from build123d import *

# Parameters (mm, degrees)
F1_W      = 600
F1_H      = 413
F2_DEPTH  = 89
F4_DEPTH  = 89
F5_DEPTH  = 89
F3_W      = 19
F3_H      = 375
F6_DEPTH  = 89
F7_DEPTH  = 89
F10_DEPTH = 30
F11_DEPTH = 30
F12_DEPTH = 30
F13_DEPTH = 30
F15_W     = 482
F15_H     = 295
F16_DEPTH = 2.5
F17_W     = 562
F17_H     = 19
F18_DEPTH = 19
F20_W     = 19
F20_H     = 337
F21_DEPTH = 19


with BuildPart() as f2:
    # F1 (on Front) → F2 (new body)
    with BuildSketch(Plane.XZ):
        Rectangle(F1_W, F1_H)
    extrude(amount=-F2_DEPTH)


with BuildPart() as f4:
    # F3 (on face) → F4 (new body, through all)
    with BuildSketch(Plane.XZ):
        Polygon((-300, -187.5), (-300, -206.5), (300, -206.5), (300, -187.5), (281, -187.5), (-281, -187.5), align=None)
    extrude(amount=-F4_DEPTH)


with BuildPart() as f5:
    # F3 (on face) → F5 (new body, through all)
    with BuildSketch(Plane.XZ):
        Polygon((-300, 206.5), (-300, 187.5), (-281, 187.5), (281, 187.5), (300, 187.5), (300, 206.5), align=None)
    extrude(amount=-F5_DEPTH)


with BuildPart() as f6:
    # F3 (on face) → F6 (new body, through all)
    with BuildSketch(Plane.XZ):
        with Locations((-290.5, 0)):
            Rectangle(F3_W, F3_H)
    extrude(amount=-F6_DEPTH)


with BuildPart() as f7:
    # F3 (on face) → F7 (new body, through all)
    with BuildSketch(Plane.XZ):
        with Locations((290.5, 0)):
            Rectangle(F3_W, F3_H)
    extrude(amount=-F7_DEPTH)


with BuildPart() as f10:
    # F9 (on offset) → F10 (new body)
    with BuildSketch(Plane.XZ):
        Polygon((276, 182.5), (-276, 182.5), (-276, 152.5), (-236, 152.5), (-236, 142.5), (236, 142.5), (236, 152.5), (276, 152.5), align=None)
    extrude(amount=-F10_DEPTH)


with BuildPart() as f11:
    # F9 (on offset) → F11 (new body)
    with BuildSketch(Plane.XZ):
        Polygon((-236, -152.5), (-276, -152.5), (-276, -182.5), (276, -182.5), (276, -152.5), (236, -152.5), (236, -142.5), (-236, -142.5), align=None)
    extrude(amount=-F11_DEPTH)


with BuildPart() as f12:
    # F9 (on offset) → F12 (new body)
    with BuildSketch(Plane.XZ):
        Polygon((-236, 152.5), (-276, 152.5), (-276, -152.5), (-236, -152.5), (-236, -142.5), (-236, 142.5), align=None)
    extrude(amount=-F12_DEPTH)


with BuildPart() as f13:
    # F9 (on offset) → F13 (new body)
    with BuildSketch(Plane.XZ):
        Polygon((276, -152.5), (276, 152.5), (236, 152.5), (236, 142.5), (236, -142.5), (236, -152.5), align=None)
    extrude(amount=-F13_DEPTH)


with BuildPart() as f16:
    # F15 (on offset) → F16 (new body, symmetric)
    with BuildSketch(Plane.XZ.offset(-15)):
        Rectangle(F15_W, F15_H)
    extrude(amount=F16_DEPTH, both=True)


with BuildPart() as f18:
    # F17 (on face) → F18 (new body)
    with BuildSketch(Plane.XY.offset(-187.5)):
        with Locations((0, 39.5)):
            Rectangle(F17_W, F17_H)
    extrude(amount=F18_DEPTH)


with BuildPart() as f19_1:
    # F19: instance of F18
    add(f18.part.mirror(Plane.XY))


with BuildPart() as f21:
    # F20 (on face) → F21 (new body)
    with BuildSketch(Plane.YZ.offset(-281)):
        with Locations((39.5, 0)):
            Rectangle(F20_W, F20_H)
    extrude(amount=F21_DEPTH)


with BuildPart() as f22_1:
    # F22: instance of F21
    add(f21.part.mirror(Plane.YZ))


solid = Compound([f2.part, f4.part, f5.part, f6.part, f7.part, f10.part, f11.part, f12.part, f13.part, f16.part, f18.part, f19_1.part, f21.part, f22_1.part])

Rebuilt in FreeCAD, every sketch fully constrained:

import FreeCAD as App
import Part
import Sketcher
Q = App.Units.Quantity

doc = App.newDocument("Part")
body = doc.addObject("PartDesign::Body", "Body")

# Sketch on XZ plane
sketch1 = body.newObject("Sketcher::SketchObject", "Sketch")
sketch1.AttachmentSupport = (doc.getObject("XZ_Plane"), [""])
sketch1.MapMode = "FlatFace"
sketch1.addGeometry(Part.LineSegment(App.Vector(-300, 206.5, 0), App.Vector(-300, -206.5, 0)), False)
sketch1.addGeometry(Part.LineSegment(App.Vector(-300, -206.5, 0), App.Vector(300, -206.5, 0)), False)
sketch1.addGeometry(Part.LineSegment(App.Vector(300, -206.5, 0), App.Vector(300, 206.5, 0)), False)
sketch1.addGeometry(Part.LineSegment(App.Vector(300, 206.5, 0), App.Vector(-300, 206.5, 0)), False)
sketch1.addConstraint(Sketcher.Constraint("Coincident", 0, 2, 1, 1))
sketch1.addConstraint(Sketcher.Constraint("Coincident", 1, 2, 2, 1))
sketch1.addConstraint(Sketcher.Constraint("Coincident", 2, 2, 3, 1))
sketch1.addConstraint(Sketcher.Constraint("Coincident", 3, 2, 0, 1))
sketch1.addConstraint(Sketcher.Constraint("Vertical", 0))
sketch1.addConstraint(Sketcher.Constraint("Horizontal", 1))
sketch1.addConstraint(Sketcher.Constraint("Vertical", 2))
sketch1.addConstraint(Sketcher.Constraint("Horizontal", 3))
sketch1.addConstraint(Sketcher.Constraint("Symmetric", 0, 2, 2, 2, -1, 1))
sketch1.addConstraint(Sketcher.Constraint("DistanceX", 1, 1, 1, 2, Q("600 mm")))
sketch1.addConstraint(Sketcher.Constraint("DistanceY", 0, 2, 0, 1, Q("413 mm")))
pad1 = body.newObject("PartDesign::Pad", "Pad")
pad1.Profile = sketch1
pad1.Length = 89
pad1.Reversed = True
body2 = doc.addObject("PartDesign::Body", "Body001")

# Sketch on XZ plane
sketch2 = body2.newObject("Sketcher::SketchObject", "Sketch001")
sketch2.AttachmentSupport = (doc.getObject("XZ_Plane001"), [""])
sketch2.MapMode = "FlatFace"
sketch2.addGeometry(Part.LineSegment(App.Vector(-300, -187.5, 0), App.Vector(-300, -206.5, 0)), False)
sketch2.addGeometry(Part.LineSegment(App.Vector(-300, -206.5, 0), App.Vector(300, -206.5, 0)), False)
sketch2.addGeometry(Part.LineSegment(App.Vector(300, -206.5, 0), App.Vector(300, -187.5, 0)), False)
sketch2.addGeometry(Part.LineSegment(App.Vector(300, -187.5, 0), App.Vector(-300, -187.5, 0)), False)
sketch2.addConstraint(Sketcher.Constraint("Coincident", 0, 2, 1, 1))
sketch2.addConstraint(Sketcher.Constraint("Coincident", 1, 2, 2, 1))
sketch2.addConstraint(Sketcher.Constraint("Coincident", 2, 2, 3, 1))
sketch2.addConstraint(Sketcher.Constraint("Coincident", 3, 2, 0, 1))
sketch2.addConstraint(Sketcher.Constraint("Vertical", 0))
sketch2.addConstraint(Sketcher.Constraint("Horizontal", 1))
sketch2.addConstraint(Sketcher.Constraint("Vertical", 2))
sketch2.addConstraint(Sketcher.Constraint("Horizontal", 3))
sketch2.addConstraint(Sketcher.Constraint("DistanceX", 1, 1, 1, 2, Q("600 mm")))
sketch2.addConstraint(Sketcher.Constraint("DistanceY", 0, 2, 0, 1, Q("19 mm")))
sketch2.addConstraint(Sketcher.Constraint("DistanceX", 0, 2, -1, 1, Q("300 mm")))
sketch2.addConstraint(Sketcher.Constraint("DistanceY", 0, 2, -1, 1, Q("206.5 mm")))
pad2 = body2.newObject("PartDesign::Pad", "Pad001")
pad2.Profile = sketch2
pad2.Length = 89
pad2.Reversed = True
body3 = doc.addObject("PartDesign::Body", "Body002")

# Sketch on XZ plane
sketch3 = body3.newObject("Sketcher::SketchObject", "Sketch002")
sketch3.AttachmentSupport = (doc.getObject("XZ_Plane002"), [""])
sketch3.MapMode = "FlatFace"
sketch3.addGeometry(Part.LineSegment(App.Vector(-300, 206.5, 0), App.Vector(-300, 187.5, 0)), False)
sketch3.addGeometry(Part.LineSegment(App.Vector(-300, 187.5, 0), App.Vector(300, 187.5, 0)), False)
sketch3.addGeometry(Part.LineSegment(App.Vector(300, 187.5, 0), App.Vector(300, 206.5, 0)), False)
sketch3.addGeometry(Part.LineSegment(App.Vector(300, 206.5, 0), App.Vector(-300, 206.5, 0)), False)
sketch3.addConstraint(Sketcher.Constraint("Coincident", 0, 2, 1, 1))
sketch3.addConstraint(Sketcher.Constraint("Coincident", 1, 2, 2, 1))
sketch3.addConstraint(Sketcher.Constraint("Coincident", 2, 2, 3, 1))
sketch3.addConstraint(Sketcher.Constraint("Coincident", 3, 2, 0, 1))
sketch3.addConstraint(Sketcher.Constraint("Vertical", 0))
sketch3.addConstraint(Sketcher.Constraint("Horizontal", 1))
sketch3.addConstraint(Sketcher.Constraint("Vertical", 2))
sketch3.addConstraint(Sketcher.Constraint("Horizontal", 3))
sketch3.addConstraint(Sketcher.Constraint("DistanceX", 1, 1, 1, 2, Q("600 mm")))
sketch3.addConstraint(Sketcher.Constraint("DistanceY", 0, 2, 0, 1, Q("19 mm")))
sketch3.addConstraint(Sketcher.Constraint("DistanceX", 0, 2, -1, 1, Q("300 mm")))
sketch3.addConstraint(Sketcher.Constraint("DistanceY", -1, 1, 0, 2, Q("187.5 mm")))
pad3 = body3.newObject("PartDesign::Pad", "Pad002")
pad3.Profile = sketch3
pad3.Length = 89
pad3.Reversed = True
body4 = doc.addObject("PartDesign::Body", "Body003")

# Sketch on XZ plane
sketch4 = body4.newObject("Sketcher::SketchObject", "Sketch003")
sketch4.AttachmentSupport = (doc.getObject("XZ_Plane003"), [""])
sketch4.MapMode = "FlatFace"
sketch4.addGeometry(Part.LineSegment(App.Vector(-300, 187.5, 0), App.Vector(-300, -187.5, 0)), False)
sketch4.addGeometry(Part.LineSegment(App.Vector(-300, -187.5, 0), App.Vector(-281, -187.5, 0)), False)
sketch4.addGeometry(Part.LineSegment(App.Vector(-281, -187.5, 0), App.Vector(-281, 187.5, 0)), False)
sketch4.addGeometry(Part.LineSegment(App.Vector(-281, 187.5, 0), App.Vector(-300, 187.5, 0)), False)
sketch4.addConstraint(Sketcher.Constraint("Coincident", 0, 2, 1, 1))
sketch4.addConstraint(Sketcher.Constraint("Coincident", 1, 2, 2, 1))
sketch4.addConstraint(Sketcher.Constraint("Coincident", 2, 2, 3, 1))
sketch4.addConstraint(Sketcher.Constraint("Coincident", 3, 2, 0, 1))
sketch4.addConstraint(Sketcher.Constraint("Vertical", 0))
sketch4.addConstraint(Sketcher.Constraint("Horizontal", 1))
sketch4.addConstraint(Sketcher.Constraint("Vertical", 2))
sketch4.addConstraint(Sketcher.Constraint("Horizontal", 3))
sketch4.addConstraint(Sketcher.Constraint("DistanceX", 1, 1, 1, 2, Q("19 mm")))
sketch4.addConstraint(Sketcher.Constraint("DistanceY", 0, 2, 0, 1, Q("375 mm")))
sketch4.addConstraint(Sketcher.Constraint("DistanceX", 0, 2, -1, 1, Q("300 mm")))
sketch4.addConstraint(Sketcher.Constraint("DistanceY", 0, 2, -1, 1, Q("187.5 mm")))
pad4 = body4.newObject("PartDesign::Pad", "Pad003")
pad4.Profile = sketch4
pad4.Length = 89
pad4.Reversed = True
body5 = doc.addObject("PartDesign::Body", "Body004")

# Sketch on XZ plane
sketch5 = body5.newObject("Sketcher::SketchObject", "Sketch004")
sketch5.AttachmentSupport = (doc.getObject("XZ_Plane004"), [""])
sketch5.MapMode = "FlatFace"
sketch5.addGeometry(Part.LineSegment(App.Vector(281, 187.5, 0), App.Vector(281, -187.5, 0)), False)
sketch5.addGeometry(Part.LineSegment(App.Vector(281, -187.5, 0), App.Vector(300, -187.5, 0)), False)
sketch5.addGeometry(Part.LineSegment(App.Vector(300, -187.5, 0), App.Vector(300, 187.5, 0)), False)
sketch5.addGeometry(Part.LineSegment(App.Vector(300, 187.5, 0), App.Vector(281, 187.5, 0)), False)
sketch5.addConstraint(Sketcher.Constraint("Coincident", 0, 2, 1, 1))
sketch5.addConstraint(Sketcher.Constraint("Coincident", 1, 2, 2, 1))
sketch5.addConstraint(Sketcher.Constraint("Coincident", 2, 2, 3, 1))
sketch5.addConstraint(Sketcher.Constraint("Coincident", 3, 2, 0, 1))
sketch5.addConstraint(Sketcher.Constraint("Vertical", 0))
sketch5.addConstraint(Sketcher.Constraint("Horizontal", 1))
sketch5.addConstraint(Sketcher.Constraint("Vertical", 2))
sketch5.addConstraint(Sketcher.Constraint("Horizontal", 3))
sketch5.addConstraint(Sketcher.Constraint("DistanceX", 1, 1, 1, 2, Q("19 mm")))
sketch5.addConstraint(Sketcher.Constraint("DistanceY", 0, 2, 0, 1, Q("375 mm")))
sketch5.addConstraint(Sketcher.Constraint("DistanceX", -1, 1, 0, 2, Q("281 mm")))
sketch5.addConstraint(Sketcher.Constraint("DistanceY", 0, 2, -1, 1, Q("187.5 mm")))
pad5 = body5.newObject("PartDesign::Pad", "Pad004")
pad5.Profile = sketch5
pad5.Length = 89
pad5.Reversed = True
body6 = doc.addObject("PartDesign::Body", "Body005")

# Sketch on XZ plane
sketch6 = body6.newObject("Sketcher::SketchObject", "Sketch005")
sketch6.AttachmentSupport = (doc.getObject("XZ_Plane005"), [""])
sketch6.MapMode = "FlatFace"
sketch6.addGeometry(Part.LineSegment(App.Vector(276, 182.5, 0), App.Vector(-276, 182.5, 0)), False)
sketch6.addGeometry(Part.LineSegment(App.Vector(-276, 182.5, 0), App.Vector(-276, 152.5, 0)), False)
sketch6.addGeometry(Part.LineSegment(App.Vector(-276, 152.5, 0), App.Vector(-236, 152.5, 0)), False)
sketch6.addGeometry(Part.LineSegment(App.Vector(-236, 152.5, 0), App.Vector(-236, 142.5, 0)), False)
sketch6.addGeometry(Part.LineSegment(App.Vector(-236, 142.5, 0), App.Vector(236, 142.5, 0)), False)
sketch6.addGeometry(Part.LineSegment(App.Vector(236, 142.5, 0), App.Vector(236, 152.5, 0)), False)
sketch6.addGeometry(Part.LineSegment(App.Vector(236, 152.5, 0), App.Vector(276, 152.5, 0)), False)
sketch6.addGeometry(Part.LineSegment(App.Vector(276, 152.5, 0), App.Vector(276, 182.5, 0)), False)
sketch6.addConstraint(Sketcher.Constraint("Coincident", 0, 2, 1, 1))
sketch6.addConstraint(Sketcher.Constraint("Coincident", 1, 2, 2, 1))
sketch6.addConstraint(Sketcher.Constraint("Coincident", 2, 2, 3, 1))
sketch6.addConstraint(Sketcher.Constraint("Coincident", 3, 2, 4, 1))
sketch6.addConstraint(Sketcher.Constraint("Coincident", 4, 2, 5, 1))
sketch6.addConstraint(Sketcher.Constraint("Coincident", 5, 2, 6, 1))
sketch6.addConstraint(Sketcher.Constraint("Coincident", 6, 2, 7, 1))
sketch6.addConstraint(Sketcher.Constraint("Coincident", 7, 2, 0, 1))
sketch6.addConstraint(Sketcher.Constraint("Horizontal", 0))
sketch6.addConstraint(Sketcher.Constraint("Vertical", 1))
sketch6.addConstraint(Sketcher.Constraint("Horizontal", 2))
sketch6.addConstraint(Sketcher.Constraint("Vertical", 3))
sketch6.addConstraint(Sketcher.Constraint("Horizontal", 4))
sketch6.addConstraint(Sketcher.Constraint("Vertical", 5))
sketch6.addConstraint(Sketcher.Constraint("Horizontal", 6))
sketch6.addConstraint(Sketcher.Constraint("Vertical", 7))
sketch6.addConstraint(Sketcher.Constraint("Symmetric", 2, 2, 5, 2, -2))
sketch6.addConstraint(Sketcher.Constraint("Equal", 2, 6))
sketch6.addConstraint(Sketcher.Constraint("DistanceX", 0, 2, 0, 1, Q("552 mm")))
sketch6.addConstraint(Sketcher.Constraint("DistanceX", 2, 1, 2, 2, Q("40 mm")))
sketch6.addConstraint(Sketcher.Constraint("DistanceY", 1, 2, 1, 1, Q("30 mm")))
sketch6.addConstraint(Sketcher.Constraint("DistanceY", 3, 2, 3, 1, Q("10 mm")))
sketch6.addConstraint(Sketcher.Constraint("DistanceY", -1, 1, 0, 2, Q("182.5 mm")))
pad6 = body6.newObject("PartDesign::Pad", "Pad005")
pad6.Profile = sketch6
pad6.Length = 30
pad6.Reversed = True
body7 = doc.addObject("PartDesign::Body", "Body006")

# Sketch on XZ plane
sketch7 = body7.newObject("Sketcher::SketchObject", "Sketch006")
sketch7.AttachmentSupport = (doc.getObject("XZ_Plane006"), [""])
sketch7.MapMode = "FlatFace"
sketch7.addGeometry(Part.LineSegment(App.Vector(-236, -152.5, 0), App.Vector(-276, -152.5, 0)), False)
sketch7.addGeometry(Part.LineSegment(App.Vector(-276, -152.5, 0), App.Vector(-276, -182.5, 0)), False)
sketch7.addGeometry(Part.LineSegment(App.Vector(-276, -182.5, 0), App.Vector(276, -182.5, 0)), False)
sketch7.addGeometry(Part.LineSegment(App.Vector(276, -182.5, 0), App.Vector(276, -152.5, 0)), False)
sketch7.addGeometry(Part.LineSegment(App.Vector(276, -152.5, 0), App.Vector(236, -152.5, 0)), False)
sketch7.addGeometry(Part.LineSegment(App.Vector(236, -152.5, 0), App.Vector(236, -142.5, 0)), False)
sketch7.addGeometry(Part.LineSegment(App.Vector(236, -142.5, 0), App.Vector(-236, -142.5, 0)), False)
sketch7.addGeometry(Part.LineSegment(App.Vector(-236, -142.5, 0), App.Vector(-236, -152.5, 0)), False)
sketch7.addConstraint(Sketcher.Constraint("Coincident", 0, 2, 1, 1))
sketch7.addConstraint(Sketcher.Constraint("Coincident", 1, 2, 2, 1))
sketch7.addConstraint(Sketcher.Constraint("Coincident", 2, 2, 3, 1))
sketch7.addConstraint(Sketcher.Constraint("Coincident", 3, 2, 4, 1))
sketch7.addConstraint(Sketcher.Constraint("Coincident", 4, 2, 5, 1))
sketch7.addConstraint(Sketcher.Constraint("Coincident", 5, 2, 6, 1))
sketch7.addConstraint(Sketcher.Constraint("Coincident", 6, 2, 7, 1))
sketch7.addConstraint(Sketcher.Constraint("Coincident", 7, 2, 0, 1))
sketch7.addConstraint(Sketcher.Constraint("Horizontal", 0))
sketch7.addConstraint(Sketcher.Constraint("Vertical", 1))
sketch7.addConstraint(Sketcher.Constraint("Horizontal", 2))
sketch7.addConstraint(Sketcher.Constraint("Vertical", 3))
sketch7.addConstraint(Sketcher.Constraint("Horizontal", 4))
sketch7.addConstraint(Sketcher.Constraint("Vertical", 5))
sketch7.addConstraint(Sketcher.Constraint("Horizontal", 6))
sketch7.addConstraint(Sketcher.Constraint("Vertical", 7))
sketch7.addConstraint(Sketcher.Constraint("Symmetric", 0, 2, 3, 2, -2))
sketch7.addConstraint(Sketcher.Constraint("Equal", 0, 4))
sketch7.addConstraint(Sketcher.Constraint("DistanceX", 0, 2, 0, 1, Q("40 mm")))
sketch7.addConstraint(Sketcher.Constraint("DistanceX", 2, 1, 2, 2, Q("552 mm")))
sketch7.addConstraint(Sketcher.Constraint("DistanceY", 1, 2, 1, 1, Q("30 mm")))
sketch7.addConstraint(Sketcher.Constraint("DistanceY", 5, 1, 5, 2, Q("10 mm")))
sketch7.addConstraint(Sketcher.Constraint("DistanceY", 0, 2, -1, 1, Q("152.5 mm")))
pad7 = body7.newObject("PartDesign::Pad", "Pad006")
pad7.Profile = sketch7
pad7.Length = 30
pad7.Reversed = True
body8 = doc.addObject("PartDesign::Body", "Body007")

# Sketch on XZ plane
sketch8 = body8.newObject("Sketcher::SketchObject", "Sketch007")
sketch8.AttachmentSupport = (doc.getObject("XZ_Plane007"), [""])
sketch8.MapMode = "FlatFace"
sketch8.addGeometry(Part.LineSegment(App.Vector(-236, 152.5, 0), App.Vector(-276, 152.5, 0)), False)
sketch8.addGeometry(Part.LineSegment(App.Vector(-276, 152.5, 0), App.Vector(-276, -152.5, 0)), False)
sketch8.addGeometry(Part.LineSegment(App.Vector(-276, -152.5, 0), App.Vector(-236, -152.5, 0)), False)
sketch8.addGeometry(Part.LineSegment(App.Vector(-236, -152.5, 0), App.Vector(-236, 152.5, 0)), False)
sketch8.addConstraint(Sketcher.Constraint("Coincident", 0, 2, 1, 1))
sketch8.addConstraint(Sketcher.Constraint("Coincident", 1, 2, 2, 1))
sketch8.addConstraint(Sketcher.Constraint("Coincident", 2, 2, 3, 1))
sketch8.addConstraint(Sketcher.Constraint("Coincident", 3, 2, 0, 1))
sketch8.addConstraint(Sketcher.Constraint("Horizontal", 0))
sketch8.addConstraint(Sketcher.Constraint("Vertical", 1))
sketch8.addConstraint(Sketcher.Constraint("Horizontal", 2))
sketch8.addConstraint(Sketcher.Constraint("Vertical", 3))
sketch8.addConstraint(Sketcher.Constraint("DistanceX", 0, 2, 0, 1, Q("40 mm")))
sketch8.addConstraint(Sketcher.Constraint("DistanceY", 1, 2, 1, 1, Q("305 mm")))
sketch8.addConstraint(Sketcher.Constraint("DistanceX", 0, 2, -1, 1, Q("276 mm")))
sketch8.addConstraint(Sketcher.Constraint("DistanceY", -1, 1, 0, 2, Q("152.5 mm")))
pad8 = body8.newObject("PartDesign::Pad", "Pad007")
pad8.Profile = sketch8
pad8.Length = 30
pad8.Reversed = True
body9 = doc.addObject("PartDesign::Body", "Body008")

# Sketch on XZ plane
sketch9 = body9.newObject("Sketcher::SketchObject", "Sketch008")
sketch9.AttachmentSupport = (doc.getObject("XZ_Plane008"), [""])
sketch9.MapMode = "FlatFace"
sketch9.addGeometry(Part.LineSegment(App.Vector(276, -152.5, 0), App.Vector(276, 152.5, 0)), False)
sketch9.addGeometry(Part.LineSegment(App.Vector(276, 152.5, 0), App.Vector(236, 152.5, 0)), False)
sketch9.addGeometry(Part.LineSegment(App.Vector(236, 152.5, 0), App.Vector(236, -152.5, 0)), False)
sketch9.addGeometry(Part.LineSegment(App.Vector(236, -152.5, 0), App.Vector(276, -152.5, 0)), False)
sketch9.addConstraint(Sketcher.Constraint("Coincident", 0, 2, 1, 1))
sketch9.addConstraint(Sketcher.Constraint("Coincident", 1, 2, 2, 1))
sketch9.addConstraint(Sketcher.Constraint("Coincident", 2, 2, 3, 1))
sketch9.addConstraint(Sketcher.Constraint("Coincident", 3, 2, 0, 1))
sketch9.addConstraint(Sketcher.Constraint("Vertical", 0))
sketch9.addConstraint(Sketcher.Constraint("Horizontal", 1))
sketch9.addConstraint(Sketcher.Constraint("Vertical", 2))
sketch9.addConstraint(Sketcher.Constraint("Horizontal", 3))
sketch9.addConstraint(Sketcher.Constraint("DistanceX", 1, 2, 1, 1, Q("40 mm")))
sketch9.addConstraint(Sketcher.Constraint("DistanceY", 0, 1, 0, 2, Q("305 mm")))
sketch9.addConstraint(Sketcher.Constraint("DistanceX", -1, 1, 0, 2, Q("276 mm")))
sketch9.addConstraint(Sketcher.Constraint("DistanceY", -1, 1, 0, 2, Q("152.5 mm")))
pad9 = body9.newObject("PartDesign::Pad", "Pad008")
pad9.Profile = sketch9
pad9.Length = 30
pad9.Reversed = True
body10 = doc.addObject("PartDesign::Body", "Body009")

# Sketch on XZ plane
sketch10 = body10.newObject("Sketcher::SketchObject", "Sketch009")
sketch10.AttachmentSupport = (doc.getObject("XZ_Plane009"), [""])
sketch10.MapMode = "FlatFace"
sketch10.AttachmentOffset = App.Placement(App.Vector(0, 0, -15), App.Rotation())
sketch10.addGeometry(Part.LineSegment(App.Vector(-241, 147.5, 0), App.Vector(-241, -147.5, 0)), False)
sketch10.addGeometry(Part.LineSegment(App.Vector(-241, -147.5, 0), App.Vector(241, -147.5, 0)), False)
sketch10.addGeometry(Part.LineSegment(App.Vector(241, -147.5, 0), App.Vector(241, 147.5, 0)), False)
sketch10.addGeometry(Part.LineSegment(App.Vector(241, 147.5, 0), App.Vector(-241, 147.5, 0)), False)
sketch10.addConstraint(Sketcher.Constraint("Coincident", 0, 2, 1, 1))
sketch10.addConstraint(Sketcher.Constraint("Coincident", 1, 2, 2, 1))
sketch10.addConstraint(Sketcher.Constraint("Coincident", 2, 2, 3, 1))
sketch10.addConstraint(Sketcher.Constraint("Coincident", 3, 2, 0, 1))
sketch10.addConstraint(Sketcher.Constraint("Vertical", 0))
sketch10.addConstraint(Sketcher.Constraint("Horizontal", 1))
sketch10.addConstraint(Sketcher.Constraint("Vertical", 2))
sketch10.addConstraint(Sketcher.Constraint("Horizontal", 3))
sketch10.addConstraint(Sketcher.Constraint("Symmetric", 0, 2, 2, 2, -1, 1))
sketch10.addConstraint(Sketcher.Constraint("DistanceX", 1, 1, 1, 2, Q("482 mm")))
sketch10.addConstraint(Sketcher.Constraint("DistanceY", 0, 2, 0, 1, Q("295 mm")))
pad10 = body10.newObject("PartDesign::Pad", "Pad009")
pad10.Profile = sketch10
pad10.Length = 5
pad10.Midplane = True
body11 = doc.addObject("PartDesign::Body", "Body010")

# Sketch on XY plane
sketch11 = body11.newObject("Sketcher::SketchObject", "Sketch010")
sketch11.AttachmentSupport = (doc.getObject("XY_Plane010"), [""])
sketch11.MapMode = "FlatFace"
sketch11.AttachmentOffset = App.Placement(App.Vector(0, 0, -187.5), App.Rotation())
sketch11.addGeometry(Part.LineSegment(App.Vector(-281, 49, 0), App.Vector(-281, 30, 0)), False)
sketch11.addGeometry(Part.LineSegment(App.Vector(-281, 30, 0), App.Vector(281, 30, 0)), False)
sketch11.addGeometry(Part.LineSegment(App.Vector(281, 30, 0), App.Vector(281, 49, 0)), False)
sketch11.addGeometry(Part.LineSegment(App.Vector(281, 49, 0), App.Vector(-281, 49, 0)), False)
sketch11.addConstraint(Sketcher.Constraint("Coincident", 0, 2, 1, 1))
sketch11.addConstraint(Sketcher.Constraint("Coincident", 1, 2, 2, 1))
sketch11.addConstraint(Sketcher.Constraint("Coincident", 2, 2, 3, 1))
sketch11.addConstraint(Sketcher.Constraint("Coincident", 3, 2, 0, 1))
sketch11.addConstraint(Sketcher.Constraint("Vertical", 0))
sketch11.addConstraint(Sketcher.Constraint("Horizontal", 1))
sketch11.addConstraint(Sketcher.Constraint("Vertical", 2))
sketch11.addConstraint(Sketcher.Constraint("Horizontal", 3))
sketch11.addConstraint(Sketcher.Constraint("DistanceX", 1, 1, 1, 2, Q("562 mm")))
sketch11.addConstraint(Sketcher.Constraint("DistanceY", 0, 2, 0, 1, Q("19 mm")))
sketch11.addConstraint(Sketcher.Constraint("DistanceX", 0, 2, -1, 1, Q("281 mm")))
sketch11.addConstraint(Sketcher.Constraint("DistanceY", -1, 1, 0, 2, Q("30 mm")))
pad11 = body11.newObject("PartDesign::Pad", "Pad010")
pad11.Profile = sketch11
pad11.Length = 19
body12 = doc.addObject("PartDesign::Body", "Body011")
doc.recompute()

mirroring = doc.addObject("Part::Mirroring", "Mirroring")
mirroring.Source = body11
mirroring.Base = App.Vector(0, 0, 0)
mirroring.Normal = App.Vector(0, 0, 1)
body12.BaseFeature = mirroring
doc.recompute()
body13 = doc.addObject("PartDesign::Body", "Body012")

# Sketch on YZ plane
sketch12 = body13.newObject("Sketcher::SketchObject", "Sketch011")
sketch12.AttachmentSupport = (doc.getObject("YZ_Plane012"), [""])
sketch12.MapMode = "FlatFace"
sketch12.AttachmentOffset = App.Placement(App.Vector(0, 0, -281), App.Rotation())
sketch12.addGeometry(Part.LineSegment(App.Vector(30, 168.5, 0), App.Vector(30, -168.5, 0)), False)
sketch12.addGeometry(Part.LineSegment(App.Vector(30, -168.5, 0), App.Vector(49, -168.5, 0)), False)
sketch12.addGeometry(Part.LineSegment(App.Vector(49, -168.5, 0), App.Vector(49, 168.5, 0)), False)
sketch12.addGeometry(Part.LineSegment(App.Vector(49, 168.5, 0), App.Vector(30, 168.5, 0)), False)
sketch12.addConstraint(Sketcher.Constraint("Coincident", 0, 2, 1, 1))
sketch12.addConstraint(Sketcher.Constraint("Coincident", 1, 2, 2, 1))
sketch12.addConstraint(Sketcher.Constraint("Coincident", 2, 2, 3, 1))
sketch12.addConstraint(Sketcher.Constraint("Coincident", 3, 2, 0, 1))
sketch12.addConstraint(Sketcher.Constraint("Vertical", 0))
sketch12.addConstraint(Sketcher.Constraint("Horizontal", 1))
sketch12.addConstraint(Sketcher.Constraint("Vertical", 2))
sketch12.addConstraint(Sketcher.Constraint("Horizontal", 3))
sketch12.addConstraint(Sketcher.Constraint("DistanceX", 1, 1, 1, 2, Q("19 mm")))
sketch12.addConstraint(Sketcher.Constraint("DistanceY", 0, 2, 0, 1, Q("337 mm")))
sketch12.addConstraint(Sketcher.Constraint("DistanceX", -1, 1, 0, 2, Q("30 mm")))
sketch12.addConstraint(Sketcher.Constraint("DistanceY", 0, 2, -1, 1, Q("168.5 mm")))
pad12 = body13.newObject("PartDesign::Pad", "Pad011")
pad12.Profile = sketch12
pad12.Length = 19
body14 = doc.addObject("PartDesign::Body", "Body013")
doc.recompute()

mirroring2 = doc.addObject("Part::Mirroring", "Mirroring001")
mirroring2.Source = body13
mirroring2.Base = App.Vector(0, 0, 0)
mirroring2.Normal = App.Vector(1, 0, 0)
body14.BaseFeature = mirroring2
doc.recompute()
mirroring.Visibility = False
mirroring2.Visibility = False

doc.recompute()
